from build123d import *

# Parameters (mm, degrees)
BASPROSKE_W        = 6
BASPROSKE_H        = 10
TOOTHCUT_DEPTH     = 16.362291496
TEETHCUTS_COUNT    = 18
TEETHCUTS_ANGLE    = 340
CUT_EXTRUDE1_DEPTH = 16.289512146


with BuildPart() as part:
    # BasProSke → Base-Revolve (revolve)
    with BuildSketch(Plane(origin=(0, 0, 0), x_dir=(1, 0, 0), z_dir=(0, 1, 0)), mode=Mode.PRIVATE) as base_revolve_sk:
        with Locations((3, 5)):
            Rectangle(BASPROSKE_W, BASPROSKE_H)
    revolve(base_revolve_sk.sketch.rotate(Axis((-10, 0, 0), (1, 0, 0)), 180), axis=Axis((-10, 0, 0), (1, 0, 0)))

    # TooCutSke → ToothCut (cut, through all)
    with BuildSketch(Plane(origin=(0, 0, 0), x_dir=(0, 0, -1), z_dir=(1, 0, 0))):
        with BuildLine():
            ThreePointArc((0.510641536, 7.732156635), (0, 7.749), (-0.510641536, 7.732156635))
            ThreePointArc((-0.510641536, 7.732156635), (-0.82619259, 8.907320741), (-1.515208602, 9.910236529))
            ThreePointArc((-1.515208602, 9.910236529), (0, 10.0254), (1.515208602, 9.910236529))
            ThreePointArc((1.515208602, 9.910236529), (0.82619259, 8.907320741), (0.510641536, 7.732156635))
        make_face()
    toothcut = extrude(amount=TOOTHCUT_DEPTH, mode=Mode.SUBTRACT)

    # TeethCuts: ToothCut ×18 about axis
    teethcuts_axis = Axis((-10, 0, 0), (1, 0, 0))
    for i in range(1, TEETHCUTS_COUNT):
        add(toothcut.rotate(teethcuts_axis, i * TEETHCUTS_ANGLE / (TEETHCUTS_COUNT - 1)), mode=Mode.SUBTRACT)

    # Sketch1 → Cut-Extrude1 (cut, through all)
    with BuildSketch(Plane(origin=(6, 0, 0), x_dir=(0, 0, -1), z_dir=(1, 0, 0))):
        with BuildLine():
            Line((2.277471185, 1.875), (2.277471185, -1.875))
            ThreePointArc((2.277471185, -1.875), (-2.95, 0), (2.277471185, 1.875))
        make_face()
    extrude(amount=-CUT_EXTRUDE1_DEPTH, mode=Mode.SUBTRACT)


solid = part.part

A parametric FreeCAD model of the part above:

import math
import FreeCAD as App
import Part
import Sketcher
from FreeCAD import Vector
Q = App.Units.Quantity

doc = App.newDocument("Part")
body = doc.addObject("PartDesign::Body", "Body")

# Sketch on XZ plane
sketch1 = doc.addObject("Sketcher::SketchObject", "Sketch")
body.addObject(sketch1)
sketch1.AttachmentSupport = (doc.XZ_Plane, [""])
sketch1.MapMode = "FlatFace"
sketch1.addGeometry(Part.LineSegment(Vector(0, -10, 0), Vector(0, 0, 0)), False)
sketch1.addGeometry(Part.LineSegment(Vector(0, 0, 0), Vector(6, 0, 0)), False)
sketch1.addGeometry(Part.LineSegment(Vector(6, 0, 0), Vector(6, -10, 0)), False)
sketch1.addGeometry(Part.LineSegment(Vector(6, -10, 0), Vector(0, -10, 0)), False)
sketch1.addConstraint(Sketcher.Constraint("Coincident", 0, 2, 1, 1))
sketch1.addConstraint(Sketcher.Constraint("Coincident", 1, 2, 2, 1))
sketch1.addConstraint(Sketcher.Constraint("Coincident", 2, 2, 3, 1))
sketch1.addConstraint(Sketcher.Constraint("Coincident", 3, 2, 0, 1))
sketch1.addConstraint(Sketcher.Constraint("Vertical", 0))
sketch1.addConstraint(Sketcher.Constraint("Horizontal", 1))
sketch1.addConstraint(Sketcher.Constraint("Vertical", 2))
sketch1.addConstraint(Sketcher.Constraint("Horizontal", 3))
sketch1.addConstraint(Sketcher.Constraint("Coincident", 0, 2, -1, 1))
sketch1.addConstraint(Sketcher.Constraint("DistanceX", 1, 1, 1, 2, Q("6 mm")))
sketch1.addConstraint(Sketcher.Constraint("DistanceY", 0, 1, 0, 2, Q("10 mm")))
revolution = doc.addObject("PartDesign::Revolution", "Revolution")
body.addObject(revolution)
revolution.Profile = sketch1
revolution.ReferenceAxis = (sketch1, ["H_Axis"])
revolution.Angle = 360

# Sketch on YZ plane
sketch2 = doc.addObject("Sketcher::SketchObject", "Sketch001")
body.addObject(sketch2)
sketch2.AttachmentSupport = (doc.YZ_Plane, [""])
sketch2.MapMode = "FlatFace"
sketch2.addGeometry(Part.ArcOfCircle(Part.Circle(Vector(0, 0, 0), Vector(0, 0, 1), 7.7), math.radians(-3.78), math.radians(3.78)), False)
sketch2.addGeometry(Part.ArcOfCircle(Part.Circle(Vector(7.4, -4.1, 0), Vector(0, 0, 1), 3.6), math.radians(46), math.radians(85)), False)
sketch2.addGeometry(Part.ArcOfCircle(Part.Circle(Vector(0, 0, 0), Vector(0, 0, 1), 10), math.radians(-8.69), math.radians(8.69)), False)
sketch2.addGeometry(Part.ArcOfCircle(Part.Circle(Vector(7.4, 4.1, 0), Vector(0, 0, 1), 3.6), math.radians(-85), math.radians(-46)), False)
sketch2.addConstraint(Sketcher.Constraint("Coincident", 0, 1, 1, 2))
sketch2.addConstraint(Sketcher.Constraint("Coincident", 1, 1, 2, 1))
sketch2.addConstraint(Sketcher.Constraint("Coincident", 2, 2, 3, 2))
sketch2.addConstraint(Sketcher.Constraint("Coincident", 3, 1, 0, 2))
sketch2.addConstraint(Sketcher.Constraint("Coincident", 0, 3, -1, 1))
sketch2.addConstraint(Sketcher.Constraint("Coincident", 2, 3, -1, 1))
sketch2.addConstraint(Sketcher.Constraint("Equal", 1, 3))
sketch2.addConstraint(Sketcher.Constraint("Symmetric", 1, 3, 3, 3, -1))
sketch2.addConstraint(Sketcher.Constraint("Radius", 1, Q("3.6 mm")))
sketch2.addConstraint(Sketcher.Constraint("Radius", 0, Q("7.749 mm")))
sketch2.addConstraint(Sketcher.Constraint("Radius", 2, Q("10.0254 mm")))
sketch2.addConstraint(Sketcher.Constraint("DistanceX", -1, 1, 1, 3, Q("7.399578 mm")))
sketch2.addConstraint(Sketcher.Constraint("DistanceY", 0, 1, -1, 1, Q("0.510642 mm")))
pocket1 = doc.addObject("PartDesign::Pocket", "Pocket")
body.addObject(pocket1)
pocket1.Profile = sketch2
pocket1.Type = "ThroughAll"
pocket1.Reversed = True
doc.recompute()

polarpattern = doc.addObject("PartDesign::PolarPattern", "PolarPattern")
body.addObject(polarpattern)
polarpattern.Originals = [pocket1]
polarpattern.Axis = (doc.X_Axis, [""])
polarpattern.Angle = 360
polarpattern.Occurrences = 18
body.Tip = polarpattern

# Sketch on YZ plane
sketch3 = doc.addObject("Sketcher::SketchObject", "Sketch002")
body.addObject(sketch3)
sketch3.AttachmentSupport = (doc.YZ_Plane, [""])
sketch3.MapMode = "FlatFace"
sketch3.AttachmentOffset = App.Placement(Vector(0, 0, 6), App.Rotation())
sketch3.addGeometry(Part.LineSegment(Vector(-1.9, -2.3, 0), Vector(1.9, -2.3, 0)), False)
sketch3.addGeometry(Part.ArcOfCircle(Part.Circle(Vector(0, 0, 0), Vector(0, 0, 1), 3), math.radians(-51), math.radians(231)), False)
sketch3.addConstraint(Sketcher.Constraint("Coincident", 0, 1, 1, 2))
sketch3.addConstraint(Sketcher.Constraint("Coincident", 1, 1, 0, 2))
sketch3.addConstraint(Sketcher.Constraint("Horizontal", 0))
sketch3.addConstraint(Sketcher.Constraint("Coincident", 1, 3, -1, 1))
sketch3.addConstraint(Sketcher.Constraint("Radius", 1, Q("2.95 mm")))
sketch3.addConstraint(Sketcher.Constraint("DistanceX", 0, 1, 0, 2, Q("3.75 mm")))
pocket2 = doc.addObject("PartDesign::Pocket", "Pocket001")
body.addObject(pocket2)
pocket2.Profile = sketch3
pocket2.Type = "ThroughAll"

doc.recompute()
